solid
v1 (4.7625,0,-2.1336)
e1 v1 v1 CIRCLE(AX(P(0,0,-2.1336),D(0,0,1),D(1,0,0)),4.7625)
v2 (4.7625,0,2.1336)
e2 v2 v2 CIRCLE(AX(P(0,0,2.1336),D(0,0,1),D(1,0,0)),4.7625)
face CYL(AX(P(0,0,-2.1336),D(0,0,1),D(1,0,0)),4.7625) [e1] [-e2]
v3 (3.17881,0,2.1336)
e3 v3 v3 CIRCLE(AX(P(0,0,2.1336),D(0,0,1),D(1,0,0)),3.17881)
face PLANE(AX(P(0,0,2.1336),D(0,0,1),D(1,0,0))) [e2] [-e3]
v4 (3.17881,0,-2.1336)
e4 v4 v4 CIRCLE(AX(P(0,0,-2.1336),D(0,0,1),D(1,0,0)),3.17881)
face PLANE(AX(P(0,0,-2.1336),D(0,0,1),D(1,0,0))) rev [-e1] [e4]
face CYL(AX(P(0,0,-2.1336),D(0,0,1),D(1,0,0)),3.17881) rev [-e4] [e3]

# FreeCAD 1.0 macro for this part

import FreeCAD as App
import Part
import Sketcher

V = App.Vector
Q = App.Units.Quantity

doc = App.newDocument("Part")
body = doc.addObject("PartDesign::Body", "Body")

sketch1 = body.newObject("Sketcher::SketchObject", "Sketch")
sketch1.AttachmentSupport = (doc.getObject("XY_Plane"), [""])
sketch1.MapMode = "FlatFace"
sketch1.addGeometry([
    Part.Circle(V(0, 0, 0), V(0, 0, 1), 4.8),
    Part.Circle(V(0, 0, 0), V(0, 0, 1), 3.2),
], False)
sketch1.addConstraint([
    Sketcher.Constraint("Coincident", 0, 3, -1, 1),
    Sketcher.Constraint("Coincident", 1, 3, -1, 1),
    Sketcher.Constraint("Diameter", 0, Q("0.375 in")),
    Sketcher.Constraint("Diameter", 1, Q("0.2503 in")),
])
pad1 = body.newObject("PartDesign::Pad", "Pad")
pad1.Profile = sketch1
pad1.Type = "TwoLengths"
pad1.Length = Q("0.084 in")
pad1.Length2 = Q("0.084 in")

doc.recompute()
